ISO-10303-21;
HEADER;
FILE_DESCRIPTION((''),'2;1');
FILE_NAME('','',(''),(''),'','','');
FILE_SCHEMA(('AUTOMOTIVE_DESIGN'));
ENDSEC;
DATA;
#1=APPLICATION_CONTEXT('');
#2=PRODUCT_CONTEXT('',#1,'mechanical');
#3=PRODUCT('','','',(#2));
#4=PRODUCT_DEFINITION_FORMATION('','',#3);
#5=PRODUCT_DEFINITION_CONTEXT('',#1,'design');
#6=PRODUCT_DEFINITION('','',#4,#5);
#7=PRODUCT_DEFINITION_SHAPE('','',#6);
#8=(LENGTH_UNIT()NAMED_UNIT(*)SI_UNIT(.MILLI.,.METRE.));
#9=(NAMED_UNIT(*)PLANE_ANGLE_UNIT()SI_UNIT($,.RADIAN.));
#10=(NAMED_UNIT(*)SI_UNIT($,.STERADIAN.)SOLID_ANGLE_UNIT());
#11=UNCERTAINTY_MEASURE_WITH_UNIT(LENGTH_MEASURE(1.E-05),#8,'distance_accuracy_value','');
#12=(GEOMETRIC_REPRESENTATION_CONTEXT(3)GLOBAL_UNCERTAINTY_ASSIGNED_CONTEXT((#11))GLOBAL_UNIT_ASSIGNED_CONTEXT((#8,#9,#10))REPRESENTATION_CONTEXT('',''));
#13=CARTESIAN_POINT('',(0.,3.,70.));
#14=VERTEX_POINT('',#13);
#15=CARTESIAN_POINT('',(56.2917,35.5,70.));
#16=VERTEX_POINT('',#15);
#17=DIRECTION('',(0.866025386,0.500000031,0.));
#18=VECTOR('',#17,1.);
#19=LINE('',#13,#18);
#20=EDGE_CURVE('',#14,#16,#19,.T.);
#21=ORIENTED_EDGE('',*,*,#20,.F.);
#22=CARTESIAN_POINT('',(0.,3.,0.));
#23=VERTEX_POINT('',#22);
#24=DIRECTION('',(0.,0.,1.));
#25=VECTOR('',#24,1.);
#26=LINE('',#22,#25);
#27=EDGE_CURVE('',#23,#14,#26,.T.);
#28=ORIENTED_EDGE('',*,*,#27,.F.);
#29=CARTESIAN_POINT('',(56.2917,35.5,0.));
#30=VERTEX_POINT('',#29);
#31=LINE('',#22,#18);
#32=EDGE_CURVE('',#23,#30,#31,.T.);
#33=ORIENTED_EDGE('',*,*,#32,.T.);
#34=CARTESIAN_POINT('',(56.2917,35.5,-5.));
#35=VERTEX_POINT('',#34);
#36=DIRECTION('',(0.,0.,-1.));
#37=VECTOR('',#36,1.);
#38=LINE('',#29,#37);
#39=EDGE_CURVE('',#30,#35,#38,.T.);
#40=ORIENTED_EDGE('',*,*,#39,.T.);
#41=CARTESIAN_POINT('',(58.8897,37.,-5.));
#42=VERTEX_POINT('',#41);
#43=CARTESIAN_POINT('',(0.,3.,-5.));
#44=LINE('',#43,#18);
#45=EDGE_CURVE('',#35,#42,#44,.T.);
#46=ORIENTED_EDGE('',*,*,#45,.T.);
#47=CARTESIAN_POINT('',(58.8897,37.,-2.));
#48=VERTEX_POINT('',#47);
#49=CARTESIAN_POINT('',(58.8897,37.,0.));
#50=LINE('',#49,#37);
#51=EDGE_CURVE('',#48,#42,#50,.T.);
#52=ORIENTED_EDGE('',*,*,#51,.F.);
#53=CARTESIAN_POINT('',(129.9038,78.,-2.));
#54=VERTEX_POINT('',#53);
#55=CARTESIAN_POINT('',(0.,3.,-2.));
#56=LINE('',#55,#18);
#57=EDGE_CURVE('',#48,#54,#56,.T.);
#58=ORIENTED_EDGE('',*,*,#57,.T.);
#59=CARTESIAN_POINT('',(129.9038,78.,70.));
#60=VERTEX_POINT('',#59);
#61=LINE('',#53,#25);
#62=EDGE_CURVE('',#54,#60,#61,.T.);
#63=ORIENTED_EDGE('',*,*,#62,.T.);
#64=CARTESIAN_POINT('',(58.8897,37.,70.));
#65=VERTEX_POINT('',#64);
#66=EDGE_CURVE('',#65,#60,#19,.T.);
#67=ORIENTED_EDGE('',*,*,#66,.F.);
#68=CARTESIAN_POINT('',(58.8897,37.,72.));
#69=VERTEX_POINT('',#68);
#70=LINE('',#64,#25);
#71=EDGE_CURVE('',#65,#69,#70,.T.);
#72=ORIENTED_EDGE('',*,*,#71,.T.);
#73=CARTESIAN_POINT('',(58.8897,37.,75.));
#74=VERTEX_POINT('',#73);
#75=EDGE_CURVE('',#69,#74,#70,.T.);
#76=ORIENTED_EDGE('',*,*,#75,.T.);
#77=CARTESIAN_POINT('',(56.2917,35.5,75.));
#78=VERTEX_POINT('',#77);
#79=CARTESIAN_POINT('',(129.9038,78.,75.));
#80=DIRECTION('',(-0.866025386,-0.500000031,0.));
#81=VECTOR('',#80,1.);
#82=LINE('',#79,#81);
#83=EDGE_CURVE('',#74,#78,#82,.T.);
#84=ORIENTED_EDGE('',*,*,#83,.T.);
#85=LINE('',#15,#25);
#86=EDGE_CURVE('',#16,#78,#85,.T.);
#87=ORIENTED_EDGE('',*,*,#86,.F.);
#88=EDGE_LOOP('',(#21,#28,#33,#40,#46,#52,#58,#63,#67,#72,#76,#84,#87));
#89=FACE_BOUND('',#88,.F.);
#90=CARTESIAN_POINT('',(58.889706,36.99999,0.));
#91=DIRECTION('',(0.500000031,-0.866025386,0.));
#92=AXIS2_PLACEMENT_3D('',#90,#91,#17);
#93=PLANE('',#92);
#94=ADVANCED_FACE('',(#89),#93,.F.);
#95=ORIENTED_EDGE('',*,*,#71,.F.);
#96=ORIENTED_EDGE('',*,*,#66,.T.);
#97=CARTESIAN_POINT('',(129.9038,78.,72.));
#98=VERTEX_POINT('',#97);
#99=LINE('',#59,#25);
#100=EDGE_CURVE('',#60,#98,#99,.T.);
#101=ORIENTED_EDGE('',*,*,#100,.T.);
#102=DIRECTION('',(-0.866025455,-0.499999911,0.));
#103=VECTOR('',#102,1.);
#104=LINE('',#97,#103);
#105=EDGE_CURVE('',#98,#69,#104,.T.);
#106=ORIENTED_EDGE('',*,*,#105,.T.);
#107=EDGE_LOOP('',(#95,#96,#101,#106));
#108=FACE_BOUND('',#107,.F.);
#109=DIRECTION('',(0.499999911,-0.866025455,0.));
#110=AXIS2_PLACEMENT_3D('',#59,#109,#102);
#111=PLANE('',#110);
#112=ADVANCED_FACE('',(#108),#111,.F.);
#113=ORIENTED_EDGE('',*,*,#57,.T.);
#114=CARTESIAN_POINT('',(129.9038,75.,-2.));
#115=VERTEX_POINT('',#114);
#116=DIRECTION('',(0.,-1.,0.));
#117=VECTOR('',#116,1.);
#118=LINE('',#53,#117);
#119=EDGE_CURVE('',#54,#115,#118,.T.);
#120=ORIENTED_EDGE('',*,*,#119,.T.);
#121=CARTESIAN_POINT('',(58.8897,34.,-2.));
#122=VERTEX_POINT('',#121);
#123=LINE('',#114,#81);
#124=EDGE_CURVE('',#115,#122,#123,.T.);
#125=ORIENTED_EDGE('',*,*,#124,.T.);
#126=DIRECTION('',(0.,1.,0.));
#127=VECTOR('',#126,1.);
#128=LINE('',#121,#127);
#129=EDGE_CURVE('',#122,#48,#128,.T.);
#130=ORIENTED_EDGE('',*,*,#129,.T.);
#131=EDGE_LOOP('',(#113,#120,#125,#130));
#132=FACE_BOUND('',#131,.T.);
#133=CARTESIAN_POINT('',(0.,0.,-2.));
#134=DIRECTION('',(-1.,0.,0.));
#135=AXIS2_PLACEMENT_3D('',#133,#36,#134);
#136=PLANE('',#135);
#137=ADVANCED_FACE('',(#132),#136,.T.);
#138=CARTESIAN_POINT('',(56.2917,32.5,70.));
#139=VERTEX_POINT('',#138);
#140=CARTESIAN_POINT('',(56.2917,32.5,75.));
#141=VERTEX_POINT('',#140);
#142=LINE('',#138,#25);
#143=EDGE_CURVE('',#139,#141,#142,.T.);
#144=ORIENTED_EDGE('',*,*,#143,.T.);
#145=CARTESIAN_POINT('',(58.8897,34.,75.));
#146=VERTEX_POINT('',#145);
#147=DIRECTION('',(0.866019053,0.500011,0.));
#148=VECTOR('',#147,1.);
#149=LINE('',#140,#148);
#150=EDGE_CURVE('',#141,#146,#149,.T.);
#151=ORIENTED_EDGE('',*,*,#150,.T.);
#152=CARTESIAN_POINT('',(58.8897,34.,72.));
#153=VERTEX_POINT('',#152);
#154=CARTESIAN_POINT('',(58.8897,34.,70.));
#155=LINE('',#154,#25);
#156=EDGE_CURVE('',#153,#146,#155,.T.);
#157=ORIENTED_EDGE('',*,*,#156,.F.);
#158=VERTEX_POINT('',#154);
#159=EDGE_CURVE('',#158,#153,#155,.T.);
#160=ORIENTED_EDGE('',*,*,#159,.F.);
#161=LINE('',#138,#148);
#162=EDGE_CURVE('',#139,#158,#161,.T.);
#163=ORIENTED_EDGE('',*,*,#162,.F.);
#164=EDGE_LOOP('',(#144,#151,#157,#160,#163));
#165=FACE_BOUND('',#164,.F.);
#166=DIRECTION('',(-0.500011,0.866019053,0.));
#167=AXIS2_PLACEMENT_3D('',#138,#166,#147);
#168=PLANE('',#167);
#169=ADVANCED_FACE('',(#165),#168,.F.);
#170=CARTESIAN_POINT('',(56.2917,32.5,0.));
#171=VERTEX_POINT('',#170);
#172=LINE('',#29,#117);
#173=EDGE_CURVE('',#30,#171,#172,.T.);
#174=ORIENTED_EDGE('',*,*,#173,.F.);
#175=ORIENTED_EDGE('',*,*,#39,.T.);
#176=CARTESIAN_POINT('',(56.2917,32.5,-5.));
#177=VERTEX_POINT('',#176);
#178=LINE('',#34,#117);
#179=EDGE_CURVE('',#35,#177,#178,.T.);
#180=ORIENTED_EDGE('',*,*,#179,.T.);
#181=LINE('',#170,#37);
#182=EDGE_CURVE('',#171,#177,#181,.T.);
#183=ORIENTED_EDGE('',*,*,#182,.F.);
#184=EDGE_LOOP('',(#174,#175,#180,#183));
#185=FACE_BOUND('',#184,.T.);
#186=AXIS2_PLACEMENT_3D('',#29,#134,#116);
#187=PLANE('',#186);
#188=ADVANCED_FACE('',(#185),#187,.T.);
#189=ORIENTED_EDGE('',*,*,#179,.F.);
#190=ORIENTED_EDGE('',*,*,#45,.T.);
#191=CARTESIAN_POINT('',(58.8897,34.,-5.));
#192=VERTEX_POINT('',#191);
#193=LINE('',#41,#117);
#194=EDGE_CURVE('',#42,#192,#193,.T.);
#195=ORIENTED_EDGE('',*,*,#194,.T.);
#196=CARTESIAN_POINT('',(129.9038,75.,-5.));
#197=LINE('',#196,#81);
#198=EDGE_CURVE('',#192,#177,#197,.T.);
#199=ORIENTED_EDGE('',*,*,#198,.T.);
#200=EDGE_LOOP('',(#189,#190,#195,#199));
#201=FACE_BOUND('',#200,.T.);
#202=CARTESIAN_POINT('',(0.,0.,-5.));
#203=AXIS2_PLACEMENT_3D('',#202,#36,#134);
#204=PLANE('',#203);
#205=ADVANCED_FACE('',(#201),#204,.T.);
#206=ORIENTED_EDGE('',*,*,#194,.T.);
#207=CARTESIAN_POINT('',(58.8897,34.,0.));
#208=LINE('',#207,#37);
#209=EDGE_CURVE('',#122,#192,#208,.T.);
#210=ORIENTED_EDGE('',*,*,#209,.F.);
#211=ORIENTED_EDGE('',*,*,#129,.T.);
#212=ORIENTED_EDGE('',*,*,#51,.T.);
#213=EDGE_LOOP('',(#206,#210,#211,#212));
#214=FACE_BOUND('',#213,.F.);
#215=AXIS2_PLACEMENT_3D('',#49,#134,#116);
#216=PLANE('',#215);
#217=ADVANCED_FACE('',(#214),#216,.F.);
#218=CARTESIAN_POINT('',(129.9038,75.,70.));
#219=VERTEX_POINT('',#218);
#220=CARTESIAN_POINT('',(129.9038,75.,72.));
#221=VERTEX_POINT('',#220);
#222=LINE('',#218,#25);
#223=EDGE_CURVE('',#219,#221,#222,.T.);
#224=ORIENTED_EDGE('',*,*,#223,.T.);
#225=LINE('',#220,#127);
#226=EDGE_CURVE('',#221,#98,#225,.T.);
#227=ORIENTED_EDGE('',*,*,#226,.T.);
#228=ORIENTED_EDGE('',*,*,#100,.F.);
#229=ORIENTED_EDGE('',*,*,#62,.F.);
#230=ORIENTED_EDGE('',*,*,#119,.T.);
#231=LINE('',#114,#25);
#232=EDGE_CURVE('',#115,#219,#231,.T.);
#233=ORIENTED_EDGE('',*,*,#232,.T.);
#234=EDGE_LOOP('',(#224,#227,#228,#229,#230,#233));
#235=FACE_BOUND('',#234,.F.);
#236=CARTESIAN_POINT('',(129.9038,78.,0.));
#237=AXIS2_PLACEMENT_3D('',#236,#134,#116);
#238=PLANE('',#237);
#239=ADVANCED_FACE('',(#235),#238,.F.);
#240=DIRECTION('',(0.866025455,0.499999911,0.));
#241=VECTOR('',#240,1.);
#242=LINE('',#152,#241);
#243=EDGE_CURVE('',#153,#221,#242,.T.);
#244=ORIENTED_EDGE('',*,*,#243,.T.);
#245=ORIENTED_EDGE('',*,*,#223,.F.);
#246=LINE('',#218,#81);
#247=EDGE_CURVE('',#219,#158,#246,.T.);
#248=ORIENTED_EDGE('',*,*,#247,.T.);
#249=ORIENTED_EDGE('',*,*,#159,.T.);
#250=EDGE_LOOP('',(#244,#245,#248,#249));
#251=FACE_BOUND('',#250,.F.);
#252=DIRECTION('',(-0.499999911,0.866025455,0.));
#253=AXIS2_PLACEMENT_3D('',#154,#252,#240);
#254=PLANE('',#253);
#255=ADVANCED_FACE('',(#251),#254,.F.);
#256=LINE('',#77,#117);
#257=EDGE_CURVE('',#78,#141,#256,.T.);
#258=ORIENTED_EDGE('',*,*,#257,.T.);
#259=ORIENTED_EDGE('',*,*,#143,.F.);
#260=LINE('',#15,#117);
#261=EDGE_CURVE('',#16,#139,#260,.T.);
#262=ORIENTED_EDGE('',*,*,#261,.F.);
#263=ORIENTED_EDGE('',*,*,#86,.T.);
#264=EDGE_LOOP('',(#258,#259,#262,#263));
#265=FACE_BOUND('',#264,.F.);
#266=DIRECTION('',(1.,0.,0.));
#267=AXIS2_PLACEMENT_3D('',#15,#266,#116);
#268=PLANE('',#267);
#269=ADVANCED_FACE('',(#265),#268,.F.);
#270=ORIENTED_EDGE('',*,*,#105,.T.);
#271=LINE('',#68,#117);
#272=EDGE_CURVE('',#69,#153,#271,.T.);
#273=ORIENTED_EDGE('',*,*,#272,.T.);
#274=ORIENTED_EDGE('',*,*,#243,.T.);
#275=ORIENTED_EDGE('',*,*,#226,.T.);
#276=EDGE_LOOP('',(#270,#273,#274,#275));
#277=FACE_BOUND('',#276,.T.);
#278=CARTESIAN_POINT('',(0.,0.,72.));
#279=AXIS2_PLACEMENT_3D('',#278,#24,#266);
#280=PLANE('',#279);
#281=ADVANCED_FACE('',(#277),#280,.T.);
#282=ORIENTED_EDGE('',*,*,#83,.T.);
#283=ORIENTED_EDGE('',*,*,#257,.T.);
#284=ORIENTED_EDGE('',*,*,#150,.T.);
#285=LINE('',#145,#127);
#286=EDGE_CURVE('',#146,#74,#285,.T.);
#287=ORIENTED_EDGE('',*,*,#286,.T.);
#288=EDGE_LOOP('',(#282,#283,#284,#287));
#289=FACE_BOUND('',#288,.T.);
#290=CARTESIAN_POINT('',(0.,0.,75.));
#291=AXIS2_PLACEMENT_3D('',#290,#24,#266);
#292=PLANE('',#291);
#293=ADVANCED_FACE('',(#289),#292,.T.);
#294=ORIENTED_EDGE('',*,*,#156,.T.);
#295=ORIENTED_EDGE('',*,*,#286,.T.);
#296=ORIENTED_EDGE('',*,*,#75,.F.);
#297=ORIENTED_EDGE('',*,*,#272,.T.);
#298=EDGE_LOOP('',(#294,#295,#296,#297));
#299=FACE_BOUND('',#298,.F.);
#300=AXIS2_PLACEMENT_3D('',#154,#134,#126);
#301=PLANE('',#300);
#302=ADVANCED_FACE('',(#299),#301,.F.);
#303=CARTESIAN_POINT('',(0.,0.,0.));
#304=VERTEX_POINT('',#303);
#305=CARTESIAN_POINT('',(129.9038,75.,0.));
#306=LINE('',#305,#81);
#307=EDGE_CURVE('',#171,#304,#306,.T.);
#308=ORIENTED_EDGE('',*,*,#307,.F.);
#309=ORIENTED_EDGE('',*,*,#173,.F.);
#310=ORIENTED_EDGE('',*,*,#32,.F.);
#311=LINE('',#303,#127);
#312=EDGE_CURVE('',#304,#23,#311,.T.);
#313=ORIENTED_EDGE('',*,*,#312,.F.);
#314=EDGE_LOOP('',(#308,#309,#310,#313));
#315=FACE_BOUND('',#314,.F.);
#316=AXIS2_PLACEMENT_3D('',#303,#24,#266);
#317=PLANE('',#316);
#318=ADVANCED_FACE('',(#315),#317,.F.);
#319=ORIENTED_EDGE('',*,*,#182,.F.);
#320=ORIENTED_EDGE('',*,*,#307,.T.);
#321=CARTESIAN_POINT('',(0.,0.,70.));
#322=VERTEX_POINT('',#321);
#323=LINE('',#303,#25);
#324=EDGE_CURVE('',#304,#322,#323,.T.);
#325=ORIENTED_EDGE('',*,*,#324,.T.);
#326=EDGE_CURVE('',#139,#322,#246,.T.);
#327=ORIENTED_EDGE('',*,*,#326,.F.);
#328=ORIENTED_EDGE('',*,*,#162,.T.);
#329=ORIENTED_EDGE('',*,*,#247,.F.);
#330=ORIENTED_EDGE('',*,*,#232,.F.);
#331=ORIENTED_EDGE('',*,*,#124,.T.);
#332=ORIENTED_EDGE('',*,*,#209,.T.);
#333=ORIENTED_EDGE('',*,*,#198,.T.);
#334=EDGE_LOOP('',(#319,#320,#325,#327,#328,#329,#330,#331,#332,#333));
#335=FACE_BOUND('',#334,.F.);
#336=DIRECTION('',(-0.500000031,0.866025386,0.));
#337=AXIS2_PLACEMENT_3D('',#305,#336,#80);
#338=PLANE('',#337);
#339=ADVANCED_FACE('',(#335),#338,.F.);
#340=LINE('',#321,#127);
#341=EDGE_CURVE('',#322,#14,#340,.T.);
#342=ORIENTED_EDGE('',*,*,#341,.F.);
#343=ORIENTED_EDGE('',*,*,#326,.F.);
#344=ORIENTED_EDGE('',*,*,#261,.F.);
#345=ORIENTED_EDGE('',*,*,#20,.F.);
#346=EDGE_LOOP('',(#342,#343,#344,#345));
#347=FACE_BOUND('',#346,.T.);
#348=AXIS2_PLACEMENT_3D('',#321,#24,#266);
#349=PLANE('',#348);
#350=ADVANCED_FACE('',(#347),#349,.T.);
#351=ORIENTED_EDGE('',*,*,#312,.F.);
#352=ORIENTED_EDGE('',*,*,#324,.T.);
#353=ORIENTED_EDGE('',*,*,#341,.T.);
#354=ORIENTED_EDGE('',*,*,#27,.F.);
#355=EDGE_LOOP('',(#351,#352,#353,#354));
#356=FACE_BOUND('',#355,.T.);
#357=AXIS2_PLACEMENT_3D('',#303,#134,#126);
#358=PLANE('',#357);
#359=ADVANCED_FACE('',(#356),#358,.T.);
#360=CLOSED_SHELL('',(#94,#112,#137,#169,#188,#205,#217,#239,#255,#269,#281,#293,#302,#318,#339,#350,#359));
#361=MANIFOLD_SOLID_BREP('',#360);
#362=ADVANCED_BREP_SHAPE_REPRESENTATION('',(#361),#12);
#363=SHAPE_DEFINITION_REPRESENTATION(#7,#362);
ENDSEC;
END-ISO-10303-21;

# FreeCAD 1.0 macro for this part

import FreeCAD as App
import Part
import Sketcher

V = App.Vector
Q = App.Units.Quantity


def add_polygon(sketch, points):
    """Adds a closed chain of lines whose ends are joined by coincident constraints."""
    first, n = sketch.GeometryCount, len(points)
    for a, b in zip(points, points[1:] + points[:1]):
        sketch.addGeometry(Part.LineSegment(App.Vector(*a, 0), App.Vector(*b, 0)), False)
    for i in range(n):
        sketch.addConstraint(Sketcher.Constraint("Coincident", first + i, 2, first + (i + 1) % n, 1))

doc = App.newDocument("Part")
body = doc.addObject("PartDesign::Body", "Body")

# Sketch on XY plane
sketch1 = body.newObject("Sketcher::SketchObject", "Sketch")
sketch1.AttachmentSupport = (doc.getObject("XY_Plane"), [""])
sketch1.MapMode = "FlatFace"
add_polygon(sketch1, [(0, 3), (0, 0), (129.9, 75), (129.9, 78)])  # lines 0-3
sketch1.addConstraint([
    Sketcher.Constraint("Vertical", 0),
    Sketcher.Constraint("Vertical", 2),
    Sketcher.Constraint("Coincident", 0, 2, -1, 1),
    Sketcher.Constraint("Parallel", 1, 3),
    Sketcher.Constraint("DistanceY", 0, 2, 0, 1, 3.0),
    Sketcher.Constraint("Angle", 3, Q("-150 deg")),
    Sketcher.Constraint("Distance", 1, 150.0),
])
pad1 = body.newObject("PartDesign::Pad", "Pad")
pad1.Profile = sketch1
pad1.Length = 70

# Sketch on XY plane
sketch2 = body.newObject("Sketcher::SketchObject", "Sketch001")
sketch2.AttachmentSupport = (doc.getObject("XY_Plane"), [""])
sketch2.MapMode = "FlatFace"
sketch2.AttachmentOffset = App.Placement(V(0, 0, 70), App.Rotation())
add_polygon(sketch2, [(58.9, 37), (56.3, 35.5), (56.3, 32.5), (58.9, 34)])  # lines 0-3
sketch2.addConstraint([
    Sketcher.Constraint("Vertical", 1),
    Sketcher.Constraint("Vertical", 3),
    Sketcher.Constraint("Parallel", 0, 2),
    Sketcher.Constraint("DistanceY", 1, 2, 1, 1, 3.0),
    Sketcher.Constraint("Distance", 0, 3.0),
    Sketcher.Constraint("Angle", 0, Q("-150 deg")),
    Sketcher.Constraint("DistanceY", -1, 1, 2, 2, 34.0),
    Sketcher.Constraint("DistanceX", -1, 1, 0, 2, 56.2917),
])
pad2 = body.newObject("PartDesign::Pad", "Pad001")
pad2.Profile = sketch2
pad2.Length = 5

# Sketch on XY plane
sketch3 = body.newObject("Sketcher::SketchObject", "Sketch002")
sketch3.AttachmentSupport = (doc.getObject("XY_Plane"), [""])
sketch3.MapMode = "FlatFace"
sketch3.AttachmentOffset = App.Placement(V(0, 0, 70), App.Rotation())
add_polygon(sketch3, [(129.9, 78), (58.9, 37), (58.9, 34), (129.9, 75)])  # lines 0-3
sketch3.addConstraint([
    Sketcher.Constraint("Vertical", 1),
    Sketcher.Constraint("Vertical", 3),
    Sketcher.Constraint("Parallel", 0, 2),
    Sketcher.Constraint("DistanceY", 1, 2, 1, 1, 3.0),
    Sketcher.Constraint("Angle", 0, Q("-150 deg")),
    Sketcher.Constraint("Distance", 0, 82.0),
    Sketcher.Constraint("DistanceY", -1, 1, 0, 2, 37.0),
    Sketcher.Constraint("DistanceX", -1, 1, 0, 2, 58.8897),
])
pad3 = body.newObject("PartDesign::Pad", "Pad002")
pad3.Profile = sketch3
pad3.Length = 2

# Sketch on XY plane
sketch4 = body.newObject("Sketcher::SketchObject", "Sketch003")
sketch4.AttachmentSupport = (doc.getObject("XY_Plane"), [""])
sketch4.MapMode = "FlatFace"
add_polygon(sketch4, [(56.3, 32.5), (56.3, 35.5), (58.9, 37), (58.9, 34)])  # lines 0-3
sketch4.addConstraint([
    Sketcher.Constraint("Vertical", 0),
    Sketcher.Constraint("Vertical", 2),
    Sketcher.Constraint("Parallel", 1, 3),
    Sketcher.Constraint("DistanceY", 0, 1, 0, 2, 3.0),
    Sketcher.Constraint("Distance", 1, 3.0),
    Sketcher.Constraint("Angle", 1, Q("30 deg")),
    Sketcher.Constraint("DistanceY", -1, 1, 1, 2, 37.0),
    Sketcher.Constraint("DistanceX", -1, 1, 0, 2, 56.2917),
])
pad4 = body.newObject("PartDesign::Pad", "Pad003")
pad4.Profile = sketch4
pad4.Length = 5
pad4.Reversed = True

# Sketch on XY plane
sketch5 = body.newObject("Sketcher::SketchObject", "Sketch004")
sketch5.AttachmentSupport = (doc.getObject("XY_Plane"), [""])
sketch5.MapMode = "FlatFace"
add_polygon(sketch5, [(129.9, 75), (58.9, 34), (58.9, 37), (129.9, 78)])  # lines 0-3
sketch5.addConstraint([
    Sketcher.Constraint("Vertical", 1),
    Sketcher.Constraint("Vertical", 3),
    Sketcher.Constraint("Parallel", 0, 2),
    Sketcher.Constraint("DistanceY", 1, 1, 1, 2, 3.0),
    Sketcher.Constraint("Angle", 0, Q("-150 deg")),
    Sketcher.Constraint("Distance", 0, 82.0),
    Sketcher.Constraint("DistanceY", -1, 1, 0, 2, 34.0),
    Sketcher.Constraint("DistanceX", -1, 1, 0, 2, 58.8897),
])
pad5 = body.newObject("PartDesign::Pad", "Pad004")
pad5.Profile = sketch5
pad5.Length = 2
pad5.Reversed = True

doc.recompute()
